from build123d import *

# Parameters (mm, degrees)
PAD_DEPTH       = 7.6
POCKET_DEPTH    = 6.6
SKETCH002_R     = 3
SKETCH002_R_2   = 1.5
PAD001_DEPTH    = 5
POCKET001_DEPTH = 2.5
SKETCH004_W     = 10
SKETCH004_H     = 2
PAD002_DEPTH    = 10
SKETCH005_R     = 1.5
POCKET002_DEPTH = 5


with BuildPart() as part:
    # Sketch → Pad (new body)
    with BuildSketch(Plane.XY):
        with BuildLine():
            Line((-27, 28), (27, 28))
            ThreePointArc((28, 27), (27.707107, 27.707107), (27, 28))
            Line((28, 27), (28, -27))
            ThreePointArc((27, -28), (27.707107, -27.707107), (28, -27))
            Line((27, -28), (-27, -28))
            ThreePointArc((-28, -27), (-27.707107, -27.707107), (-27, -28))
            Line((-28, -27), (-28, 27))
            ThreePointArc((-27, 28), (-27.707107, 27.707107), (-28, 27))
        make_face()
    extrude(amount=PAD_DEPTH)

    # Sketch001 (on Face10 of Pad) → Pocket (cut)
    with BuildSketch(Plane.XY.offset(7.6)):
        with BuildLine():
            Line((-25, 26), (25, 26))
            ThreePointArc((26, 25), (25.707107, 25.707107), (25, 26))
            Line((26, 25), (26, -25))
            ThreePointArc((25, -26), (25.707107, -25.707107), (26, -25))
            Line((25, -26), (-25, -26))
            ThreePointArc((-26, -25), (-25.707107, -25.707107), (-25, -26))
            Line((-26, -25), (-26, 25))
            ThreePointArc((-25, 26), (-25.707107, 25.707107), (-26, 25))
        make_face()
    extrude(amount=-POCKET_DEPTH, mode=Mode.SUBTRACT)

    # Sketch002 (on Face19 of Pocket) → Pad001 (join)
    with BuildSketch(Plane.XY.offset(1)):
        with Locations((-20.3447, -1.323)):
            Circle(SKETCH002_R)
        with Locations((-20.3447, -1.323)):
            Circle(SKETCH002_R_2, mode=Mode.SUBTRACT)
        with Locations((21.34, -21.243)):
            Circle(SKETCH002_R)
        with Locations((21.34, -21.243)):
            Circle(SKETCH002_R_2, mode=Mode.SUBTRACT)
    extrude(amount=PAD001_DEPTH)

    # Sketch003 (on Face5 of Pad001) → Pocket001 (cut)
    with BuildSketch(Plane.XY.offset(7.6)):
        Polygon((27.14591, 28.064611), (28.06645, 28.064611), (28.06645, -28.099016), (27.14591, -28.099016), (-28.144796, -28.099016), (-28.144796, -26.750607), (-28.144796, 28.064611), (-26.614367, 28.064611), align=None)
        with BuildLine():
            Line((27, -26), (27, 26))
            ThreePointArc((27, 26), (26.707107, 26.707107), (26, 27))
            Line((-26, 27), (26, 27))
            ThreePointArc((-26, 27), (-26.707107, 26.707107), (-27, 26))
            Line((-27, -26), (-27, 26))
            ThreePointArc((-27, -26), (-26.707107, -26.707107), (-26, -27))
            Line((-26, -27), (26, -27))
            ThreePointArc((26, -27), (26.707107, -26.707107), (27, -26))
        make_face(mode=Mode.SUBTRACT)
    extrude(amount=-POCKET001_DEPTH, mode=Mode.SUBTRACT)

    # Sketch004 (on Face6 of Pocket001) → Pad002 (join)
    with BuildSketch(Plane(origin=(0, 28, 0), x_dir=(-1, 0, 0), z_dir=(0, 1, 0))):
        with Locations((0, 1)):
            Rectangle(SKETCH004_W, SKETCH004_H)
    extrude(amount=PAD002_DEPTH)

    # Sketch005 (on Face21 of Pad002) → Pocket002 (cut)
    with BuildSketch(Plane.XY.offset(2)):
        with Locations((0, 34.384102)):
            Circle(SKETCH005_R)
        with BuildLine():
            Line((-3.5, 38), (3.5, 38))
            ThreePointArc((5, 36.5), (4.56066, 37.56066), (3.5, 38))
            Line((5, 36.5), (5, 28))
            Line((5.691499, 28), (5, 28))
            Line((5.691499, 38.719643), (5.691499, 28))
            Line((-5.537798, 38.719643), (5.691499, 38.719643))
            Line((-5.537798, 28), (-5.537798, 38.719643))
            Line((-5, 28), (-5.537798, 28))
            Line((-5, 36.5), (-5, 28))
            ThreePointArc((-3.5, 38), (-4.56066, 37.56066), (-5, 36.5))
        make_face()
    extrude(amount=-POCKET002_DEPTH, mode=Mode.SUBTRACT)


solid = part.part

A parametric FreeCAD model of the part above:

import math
import FreeCAD as App
import Part
import Sketcher
Q = App.Units.Quantity

doc = App.newDocument("Part")
body = doc.addObject("PartDesign::Body", "Body")

sketch1 = doc.addObject("Sketcher::SketchObject", "Sketch")
body.addObject(sketch1)
sketch1.AttachmentSupport = (doc.XY_Plane, [""])
sketch1.MapMode = "FlatFace"
sketch1.addGeometry([
    Part.LineSegment(App.Vector(27, 28, 0), App.Vector(-27, 28, 0)),
    Part.ArcOfCircle(Part.Circle(App.Vector(-27, 27, 0), App.Vector(0, 0, 1), 1), math.radians(90), math.radians(180)),
    Part.LineSegment(App.Vector(-28, 27, 0), App.Vector(-28, -27, 0)),
    Part.ArcOfCircle(Part.Circle(App.Vector(-27, -27, 0), App.Vector(0, 0, 1), 1), math.radians(180), math.radians(270)),
    Part.LineSegment(App.Vector(-27, -28, 0), App.Vector(27, -28, 0)),
    Part.ArcOfCircle(Part.Circle(App.Vector(27, -27, 0), App.Vector(0, 0, 1), 1), math.radians(-90), math.radians(0)),
    Part.LineSegment(App.Vector(28, -27, 0), App.Vector(28, 27, 0)),
    Part.ArcOfCircle(Part.Circle(App.Vector(27, 27, 0), App.Vector(0, 0, 1), 1), math.radians(0), math.radians(90)),
], False)
sketch1.addConstraint([
    Sketcher.Constraint("Tangent", 0, 2, 1, 1),
    Sketcher.Constraint("Tangent", 1, 2, 2, 1),
    Sketcher.Constraint("Tangent", 2, 2, 3, 1),
    Sketcher.Constraint("Tangent", 3, 2, 4, 1),
    Sketcher.Constraint("Tangent", 4, 2, 5, 1),
    Sketcher.Constraint("Tangent", 5, 2, 6, 1),
    Sketcher.Constraint("Tangent", 6, 2, 7, 1),
    Sketcher.Constraint("Tangent", 7, 2, 0, 1),
    Sketcher.Constraint("Horizontal", 0),
    Sketcher.Constraint("Vertical", 2),
    Sketcher.Constraint("Horizontal", 4),
    Sketcher.Constraint("Vertical", 6),
    Sketcher.Constraint("Equal", 1, 3),
    Sketcher.Constraint("Equal", 3, 5),
    Sketcher.Constraint("Equal", 5, 7),
    Sketcher.Constraint("Symmetric", 1, 3, 5, 3, -1, 1),
    Sketcher.Constraint("Equal", 4, 2),
    Sketcher.Constraint("Radius", 1, Q("0.999999 mm")),
    Sketcher.Constraint("DistanceX", 0, 2, 0, 1, Q("54 mm")),
])
pad1 = doc.addObject("PartDesign::Pad", "Pad")
body.addObject(pad1)
pad1.Profile = sketch1
pad1.Length = 7.6

sketch2 = doc.addObject("Sketcher::SketchObject", "Sketch001")
body.addObject(sketch2)
sketch2.AttachmentSupport = (doc.XY_Plane, [""])
sketch2.MapMode = "FlatFace"
sketch2.AttachmentOffset = App.Placement(App.Vector(0, 0, 7.6), App.Rotation())
sketch2.addGeometry([
    Part.LineSegment(App.Vector(25, 26, 0), App.Vector(-25, 26, 0)),
    Part.ArcOfCircle(Part.Circle(App.Vector(-25, 25, 0), App.Vector(0, 0, 1), 1), math.radians(90), math.radians(180)),
    Part.LineSegment(App.Vector(-26, 25, 0), App.Vector(-26, -25, 0)),
    Part.ArcOfCircle(Part.Circle(App.Vector(-25, -25, 0), App.Vector(0, 0, 1), 1), math.radians(180), math.radians(270)),
    Part.LineSegment(App.Vector(-25, -26, 0), App.Vector(25, -26, 0)),
    Part.ArcOfCircle(Part.Circle(App.Vector(25, -25, 0), App.Vector(0, 0, 1), 1), math.radians(-90), math.radians(0)),
    Part.LineSegment(App.Vector(26, -25, 0), App.Vector(26, 25, 0)),
    Part.ArcOfCircle(Part.Circle(App.Vector(25, 25, 0), App.Vector(0, 0, 1), 1), math.radians(0), math.radians(90)),
], False)
sketch2.addConstraint([
    Sketcher.Constraint("Tangent", 0, 2, 1, 1),
    Sketcher.Constraint("Tangent", 1, 2, 2, 1),
    Sketcher.Constraint("Tangent", 2, 2, 3, 1),
    Sketcher.Constraint("Tangent", 3, 2, 4, 1),
    Sketcher.Constraint("Tangent", 4, 2, 5, 1),
    Sketcher.Constraint("Tangent", 5, 2, 6, 1),
    Sketcher.Constraint("Tangent", 6, 2, 7, 1),
    Sketcher.Constraint("Tangent", 7, 2, 0, 1),
    Sketcher.Constraint("Horizontal", 0),
    Sketcher.Constraint("Vertical", 2),
    Sketcher.Constraint("Horizontal", 4),
    Sketcher.Constraint("Vertical", 6),
    Sketcher.Constraint("Equal", 1, 3),
    Sketcher.Constraint("Equal", 3, 5),
    Sketcher.Constraint("Equal", 5, 7),
    Sketcher.Constraint("Symmetric", 1, 3, 5, 3, -1, 1),
    Sketcher.Constraint("Equal", 4, 2),
    Sketcher.Constraint("Radius", 1, Q("0.999999 mm")),
    Sketcher.Constraint("DistanceX", 0, 2, 0, 1, Q("50 mm")),
])
pocket1 = doc.addObject("PartDesign::Pocket", "Pocket")
body.addObject(pocket1)
pocket1.Profile = sketch2
pocket1.Length = 6.6

sketch3 = doc.addObject("Sketcher::SketchObject", "Sketch002")
body.addObject(sketch3)
sketch3.AttachmentSupport = (doc.XY_Plane, [""])
sketch3.MapMode = "FlatFace"
sketch3.AttachmentOffset = App.Placement(App.Vector(0, 0, 1), App.Rotation())
sketch3.addGeometry([
    Part.Circle(App.Vector(-20.3, -1.3, 0), App.Vector(0, 0, 1), 3),
    Part.Circle(App.Vector(-20.3, -1.3, 0), App.Vector(0, 0, 1), 1.5),
    Part.Circle(App.Vector(21.3, -21.2, 0), App.Vector(0, 0, 1), 3),
    Part.Circle(App.Vector(21.3, -21.2, 0), App.Vector(0, 0, 1), 1.5),
], False)
sketch3.addConstraint([
    Sketcher.Constraint("Coincident", 1, 3, 0, 3),
    Sketcher.Constraint("Coincident", 3, 3, 2, 3),
    Sketcher.Constraint("Equal", 0, 2),
    Sketcher.Constraint("Equal", 1, 3),
    Sketcher.Constraint("Diameter", 0, Q("6 mm")),
    Sketcher.Constraint("Diameter", 1, Q("3 mm")),
    Sketcher.Constraint("DistanceX", -1, 1, 2, 3, Q("21.34 mm")),
    Sketcher.Constraint("DistanceY", 2, 3, 0, 3, Q("19.92 mm")),
    Sketcher.Constraint("DistanceY", 0, 3, -1, 1, Q("1.323 mm")),
    Sketcher.Constraint("DistanceX", 0, 3, -1, 1, Q("20.3447 mm")),
])
pad2 = doc.addObject("PartDesign::Pad", "Pad001")
body.addObject(pad2)
pad2.Profile = sketch3
pad2.Length = 5

sketch4 = doc.addObject("Sketcher::SketchObject", "Sketch003")
body.addObject(sketch4)
sketch4.AttachmentSupport = (doc.XY_Plane, [""])
sketch4.MapMode = "FlatFace"
sketch4.AttachmentOffset = App.Placement(App.Vector(0, 0, 7.6), App.Rotation())
sketch4.addGeometry([
    Part.LineSegment(App.Vector(28.1, 28.1, 0), App.Vector(-28.1, 28.1, 0)),
    Part.LineSegment(App.Vector(-28.1, 28.1, 0), App.Vector(-28.1, -28.1, 0)),
    Part.LineSegment(App.Vector(-28.1, -28.1, 0), App.Vector(28.1, -28.1, 0)),
    Part.LineSegment(App.Vector(28.1, -28.1, 0), App.Vector(28.1, 28.1, 0)),
    Part.ArcOfCircle(Part.Circle(App.Vector(26, -26, 0), App.Vector(0, 0, 1), 1), math.radians(-90), math.radians(0)),
    Part.LineSegment(App.Vector(26, -27, 0), App.Vector(-26, -27, 0)),
    Part.ArcOfCircle(Part.Circle(App.Vector(-26, -26, 0), App.Vector(0, 0, 1), 1), math.radians(180), math.radians(270)),
    Part.LineSegment(App.Vector(-27, -26, 0), App.Vector(-27, 26, 0)),
    Part.ArcOfCircle(Part.Circle(App.Vector(-26, 26, 0), App.Vector(0, 0, 1), 1), math.radians(90), math.radians(180)),
    Part.LineSegment(App.Vector(-26, 27, 0), App.Vector(26, 27, 0)),
    Part.ArcOfCircle(Part.Circle(App.Vector(26, 26, 0), App.Vector(0, 0, 1), 1), math.radians(0), math.radians(90)),
    Part.LineSegment(App.Vector(27, 26, 0), App.Vector(27, -26, 0)),
], False)
sketch4.addConstraint([
    Sketcher.Constraint("Coincident", 0, 2, 1, 1),
    Sketcher.Constraint("Coincident", 1, 2, 2, 1),
    Sketcher.Constraint("Coincident", 2, 2, 3, 1),
    Sketcher.Constraint("Coincident", 3, 2, 0, 1),
    Sketcher.Constraint("Tangent", 4, 1, 5, 1),
    Sketcher.Constraint("Tangent", 5, 2, 6, 2),
    Sketcher.Constraint("Tangent", 6, 1, 7, 1),
    Sketcher.Constraint("Tangent", 7, 2, 8, 2),
    Sketcher.Constraint("Tangent", 8, 1, 9, 1),
    Sketcher.Constraint("Tangent", 9, 2, 10, 2),
    Sketcher.Constraint("Tangent", 10, 1, 11, 1),
    Sketcher.Constraint("Tangent", 11, 2, 4, 2),
    Sketcher.Constraint("Horizontal", 0),
    Sketcher.Constraint("Vertical", 1),
    Sketcher.Constraint("Horizontal", 2),
    Sketcher.Constraint("Vertical", 3),
    Sketcher.Constraint("Horizontal", 5),
    Sketcher.Constraint("Vertical", 7),
    Sketcher.Constraint("Horizontal", 9),
    Sketcher.Constraint("Vertical", 11),
    Sketcher.Constraint("Equal", 4, 6),
    Sketcher.Constraint("Equal", 6, 8),
    Sketcher.Constraint("Equal", 8, 10),
    Sketcher.Constraint("Symmetric", 4, 3, 8, 3, -1, 1),
    Sketcher.Constraint("Equal", 9, 7),
    Sketcher.Constraint("Radius", 4, Q("0.999999 mm")),
    Sketcher.Constraint("DistanceX", 5, 2, 5, 1, Q("52 mm")),
    Sketcher.Constraint("DistanceX", 0, 2, 0, 1, Q("56.211246 mm")),
    Sketcher.Constraint("DistanceY", 1, 2, 1, 1, Q("56.163627 mm")),
    Sketcher.Constraint("DistanceY", -1, 1, 0, 2, Q("28.064611 mm")),
    Sketcher.Constraint("DistanceX", -1, 1, 2, 2, Q("28.06645 mm")),
])
pocket2 = doc.addObject("PartDesign::Pocket", "Pocket001")
body.addObject(pocket2)
pocket2.Profile = sketch4
pocket2.Length = 2.5

sketch5 = doc.addObject("Sketcher::SketchObject", "Sketch004")
body.addObject(sketch5)
sketch5.AttachmentSupport = (doc.XZ_Plane, [""])
sketch5.MapMode = "FlatFace"
sketch5.AttachmentOffset = App.Placement(App.Vector(0, 0, -28), App.Rotation())
sketch5.addGeometry([
    Part.LineSegment(App.Vector(5, 2, 0), App.Vector(5, 0, 0)),
    Part.LineSegment(App.Vector(5, 0, 0), App.Vector(-5, 0, 0)),
    Part.LineSegment(App.Vector(-5, 0, 0), App.Vector(-5, 2, 0)),
    Part.LineSegment(App.Vector(-5, 2, 0), App.Vector(5, 2, 0)),
], False)
sketch5.addConstraint([
    Sketcher.Constraint("Coincident", 0, 2, 1, 1),
    Sketcher.Constraint("Coincident", 1, 2, 2, 1),
    Sketcher.Constraint("Coincident", 2, 2, 3, 1),
    Sketcher.Constraint("Coincident", 3, 2, 0, 1),
    Sketcher.Constraint("Vertical", 0),
    Sketcher.Constraint("Horizontal", 1),
    Sketcher.Constraint("Vertical", 2),
    Sketcher.Constraint("Horizontal", 3),
    Sketcher.Constraint("Symmetric", 0, 2, 1, 2, -1, 1),
    Sketcher.Constraint("DistanceX", 1, 2, 1, 1, Q("10 mm")),
    Sketcher.Constraint("DistanceY", 0, 2, 0, 1, Q("2 mm")),
])
pad3 = doc.addObject("PartDesign::Pad", "Pad002")
body.addObject(pad3)
pad3.Profile = sketch5
pad3.Length = 10
pad3.Reversed = True

sketch6 = doc.addObject("Sketcher::SketchObject", "Sketch005")
body.addObject(sketch6)
sketch6.AttachmentSupport = (doc.XY_Plane, [""])
sketch6.MapMode = "FlatFace"
sketch6.AttachmentOffset = App.Placement(App.Vector(0, 0, 2), App.Rotation())
sketch6.addGeometry([
    Part.Circle(App.Vector(0, 34.4, 0), App.Vector(0, 0, 1), 1.5),
    Part.LineSegment(App.Vector(-3.5, 38, 0), App.Vector(3.5, 38, 0)),
    Part.ArcOfCircle(Part.Circle(App.Vector(3.5, 36.5, 0), App.Vector(0, 0, 1), 1.5), math.radians(0), math.radians(90)),
    Part.LineSegment(App.Vector(5, 36.5, 0), App.Vector(5, 28, 0)),
    Part.LineSegment(App.Vector(5, 28, 0), App.Vector(5.7, 28, 0)),
    Part.LineSegment(App.Vector(5.7, 28, 0), App.Vector(5.7, 38.7, 0)),
    Part.LineSegment(App.Vector(5.7, 38.7, 0), App.Vector(-5.5, 38.7, 0)),
    Part.LineSegment(App.Vector(-5.5, 38.7, 0), App.Vector(-5.5, 28, 0)),
    Part.LineSegment(App.Vector(-5.5, 28, 0), App.Vector(-5, 28, 0)),
    Part.LineSegment(App.Vector(-5, 28, 0), App.Vector(-5, 36.5, 0)),
    Part.ArcOfCircle(Part.Circle(App.Vector(-3.5, 36.5, 0), App.Vector(0, 0, 1), 1.5), math.radians(90), math.radians(180)),
], False)
sketch6.addConstraint([
    Sketcher.Constraint("Tangent", 1, 2, 2, 2),
    Sketcher.Constraint("Tangent", 2, 1, 3, 1),
    Sketcher.Constraint("Coincident", 3, 2, 4, 1),
    Sketcher.Constraint("Coincident", 4, 2, 5, 1),
    Sketcher.Constraint("Coincident", 5, 2, 6, 1),
    Sketcher.Constraint("Coincident", 6, 2, 7, 1),
    Sketcher.Constraint("Coincident", 7, 2, 8, 1),
    Sketcher.Constraint("Coincident", 8, 2, 9, 1),
    Sketcher.Constraint("Tangent", 9, 2, 10, 2),
    Sketcher.Constraint("Tangent", 10, 1, 1, 1),
    Sketcher.Constraint("Horizontal", 1),
    Sketcher.Constraint("Vertical", 3),
    Sketcher.Constraint("Horizontal", 4),
    Sketcher.Constraint("Vertical", 5),
    Sketcher.Constraint("Horizontal", 6),
    Sketcher.Constraint("Vertical", 7),
    Sketcher.Constraint("Horizontal", 8),
    Sketcher.Constraint("Vertical", 9),
    Sketcher.Constraint("Equal", 0, 2),
    Sketcher.Constraint("Equal", 2, 10),
    Sketcher.Constraint("Symmetric", 3, 2, 8, 2, -2),
    Sketcher.Constraint("PointOnObject", 0, 3, -2),
    Sketcher.Constraint("Diameter", 0, Q("3 mm")),
    Sketcher.Constraint("DistanceX", 1, 1, 1, 2, Q("7 mm")),
    Sketcher.Constraint("DistanceY", 3, 2, 3, 1, Q("8.5 mm")),
    Sketcher.Constraint("DistanceY", -1, 1, 1, 2, Q("38 mm")),
    Sketcher.Constraint("DistanceX", 4, 1, 4, 2, Q("0.691499 mm")),
    Sketcher.Constraint("DistanceX", 8, 1, 8, 2, Q("0.537798 mm")),
    Sketcher.Constraint("DistanceY", 0, 3, 1, 2, Q("3.615898 mm")),
    Sketcher.Constraint("DistanceY", 5, 1, 5, 2, Q("10.719643 mm")),
])
pocket3 = doc.addObject("PartDesign::Pocket", "Pocket002")
body.addObject(pocket3)
pocket3.Profile = sketch6
pocket3.Length = 5

doc.recompute()
